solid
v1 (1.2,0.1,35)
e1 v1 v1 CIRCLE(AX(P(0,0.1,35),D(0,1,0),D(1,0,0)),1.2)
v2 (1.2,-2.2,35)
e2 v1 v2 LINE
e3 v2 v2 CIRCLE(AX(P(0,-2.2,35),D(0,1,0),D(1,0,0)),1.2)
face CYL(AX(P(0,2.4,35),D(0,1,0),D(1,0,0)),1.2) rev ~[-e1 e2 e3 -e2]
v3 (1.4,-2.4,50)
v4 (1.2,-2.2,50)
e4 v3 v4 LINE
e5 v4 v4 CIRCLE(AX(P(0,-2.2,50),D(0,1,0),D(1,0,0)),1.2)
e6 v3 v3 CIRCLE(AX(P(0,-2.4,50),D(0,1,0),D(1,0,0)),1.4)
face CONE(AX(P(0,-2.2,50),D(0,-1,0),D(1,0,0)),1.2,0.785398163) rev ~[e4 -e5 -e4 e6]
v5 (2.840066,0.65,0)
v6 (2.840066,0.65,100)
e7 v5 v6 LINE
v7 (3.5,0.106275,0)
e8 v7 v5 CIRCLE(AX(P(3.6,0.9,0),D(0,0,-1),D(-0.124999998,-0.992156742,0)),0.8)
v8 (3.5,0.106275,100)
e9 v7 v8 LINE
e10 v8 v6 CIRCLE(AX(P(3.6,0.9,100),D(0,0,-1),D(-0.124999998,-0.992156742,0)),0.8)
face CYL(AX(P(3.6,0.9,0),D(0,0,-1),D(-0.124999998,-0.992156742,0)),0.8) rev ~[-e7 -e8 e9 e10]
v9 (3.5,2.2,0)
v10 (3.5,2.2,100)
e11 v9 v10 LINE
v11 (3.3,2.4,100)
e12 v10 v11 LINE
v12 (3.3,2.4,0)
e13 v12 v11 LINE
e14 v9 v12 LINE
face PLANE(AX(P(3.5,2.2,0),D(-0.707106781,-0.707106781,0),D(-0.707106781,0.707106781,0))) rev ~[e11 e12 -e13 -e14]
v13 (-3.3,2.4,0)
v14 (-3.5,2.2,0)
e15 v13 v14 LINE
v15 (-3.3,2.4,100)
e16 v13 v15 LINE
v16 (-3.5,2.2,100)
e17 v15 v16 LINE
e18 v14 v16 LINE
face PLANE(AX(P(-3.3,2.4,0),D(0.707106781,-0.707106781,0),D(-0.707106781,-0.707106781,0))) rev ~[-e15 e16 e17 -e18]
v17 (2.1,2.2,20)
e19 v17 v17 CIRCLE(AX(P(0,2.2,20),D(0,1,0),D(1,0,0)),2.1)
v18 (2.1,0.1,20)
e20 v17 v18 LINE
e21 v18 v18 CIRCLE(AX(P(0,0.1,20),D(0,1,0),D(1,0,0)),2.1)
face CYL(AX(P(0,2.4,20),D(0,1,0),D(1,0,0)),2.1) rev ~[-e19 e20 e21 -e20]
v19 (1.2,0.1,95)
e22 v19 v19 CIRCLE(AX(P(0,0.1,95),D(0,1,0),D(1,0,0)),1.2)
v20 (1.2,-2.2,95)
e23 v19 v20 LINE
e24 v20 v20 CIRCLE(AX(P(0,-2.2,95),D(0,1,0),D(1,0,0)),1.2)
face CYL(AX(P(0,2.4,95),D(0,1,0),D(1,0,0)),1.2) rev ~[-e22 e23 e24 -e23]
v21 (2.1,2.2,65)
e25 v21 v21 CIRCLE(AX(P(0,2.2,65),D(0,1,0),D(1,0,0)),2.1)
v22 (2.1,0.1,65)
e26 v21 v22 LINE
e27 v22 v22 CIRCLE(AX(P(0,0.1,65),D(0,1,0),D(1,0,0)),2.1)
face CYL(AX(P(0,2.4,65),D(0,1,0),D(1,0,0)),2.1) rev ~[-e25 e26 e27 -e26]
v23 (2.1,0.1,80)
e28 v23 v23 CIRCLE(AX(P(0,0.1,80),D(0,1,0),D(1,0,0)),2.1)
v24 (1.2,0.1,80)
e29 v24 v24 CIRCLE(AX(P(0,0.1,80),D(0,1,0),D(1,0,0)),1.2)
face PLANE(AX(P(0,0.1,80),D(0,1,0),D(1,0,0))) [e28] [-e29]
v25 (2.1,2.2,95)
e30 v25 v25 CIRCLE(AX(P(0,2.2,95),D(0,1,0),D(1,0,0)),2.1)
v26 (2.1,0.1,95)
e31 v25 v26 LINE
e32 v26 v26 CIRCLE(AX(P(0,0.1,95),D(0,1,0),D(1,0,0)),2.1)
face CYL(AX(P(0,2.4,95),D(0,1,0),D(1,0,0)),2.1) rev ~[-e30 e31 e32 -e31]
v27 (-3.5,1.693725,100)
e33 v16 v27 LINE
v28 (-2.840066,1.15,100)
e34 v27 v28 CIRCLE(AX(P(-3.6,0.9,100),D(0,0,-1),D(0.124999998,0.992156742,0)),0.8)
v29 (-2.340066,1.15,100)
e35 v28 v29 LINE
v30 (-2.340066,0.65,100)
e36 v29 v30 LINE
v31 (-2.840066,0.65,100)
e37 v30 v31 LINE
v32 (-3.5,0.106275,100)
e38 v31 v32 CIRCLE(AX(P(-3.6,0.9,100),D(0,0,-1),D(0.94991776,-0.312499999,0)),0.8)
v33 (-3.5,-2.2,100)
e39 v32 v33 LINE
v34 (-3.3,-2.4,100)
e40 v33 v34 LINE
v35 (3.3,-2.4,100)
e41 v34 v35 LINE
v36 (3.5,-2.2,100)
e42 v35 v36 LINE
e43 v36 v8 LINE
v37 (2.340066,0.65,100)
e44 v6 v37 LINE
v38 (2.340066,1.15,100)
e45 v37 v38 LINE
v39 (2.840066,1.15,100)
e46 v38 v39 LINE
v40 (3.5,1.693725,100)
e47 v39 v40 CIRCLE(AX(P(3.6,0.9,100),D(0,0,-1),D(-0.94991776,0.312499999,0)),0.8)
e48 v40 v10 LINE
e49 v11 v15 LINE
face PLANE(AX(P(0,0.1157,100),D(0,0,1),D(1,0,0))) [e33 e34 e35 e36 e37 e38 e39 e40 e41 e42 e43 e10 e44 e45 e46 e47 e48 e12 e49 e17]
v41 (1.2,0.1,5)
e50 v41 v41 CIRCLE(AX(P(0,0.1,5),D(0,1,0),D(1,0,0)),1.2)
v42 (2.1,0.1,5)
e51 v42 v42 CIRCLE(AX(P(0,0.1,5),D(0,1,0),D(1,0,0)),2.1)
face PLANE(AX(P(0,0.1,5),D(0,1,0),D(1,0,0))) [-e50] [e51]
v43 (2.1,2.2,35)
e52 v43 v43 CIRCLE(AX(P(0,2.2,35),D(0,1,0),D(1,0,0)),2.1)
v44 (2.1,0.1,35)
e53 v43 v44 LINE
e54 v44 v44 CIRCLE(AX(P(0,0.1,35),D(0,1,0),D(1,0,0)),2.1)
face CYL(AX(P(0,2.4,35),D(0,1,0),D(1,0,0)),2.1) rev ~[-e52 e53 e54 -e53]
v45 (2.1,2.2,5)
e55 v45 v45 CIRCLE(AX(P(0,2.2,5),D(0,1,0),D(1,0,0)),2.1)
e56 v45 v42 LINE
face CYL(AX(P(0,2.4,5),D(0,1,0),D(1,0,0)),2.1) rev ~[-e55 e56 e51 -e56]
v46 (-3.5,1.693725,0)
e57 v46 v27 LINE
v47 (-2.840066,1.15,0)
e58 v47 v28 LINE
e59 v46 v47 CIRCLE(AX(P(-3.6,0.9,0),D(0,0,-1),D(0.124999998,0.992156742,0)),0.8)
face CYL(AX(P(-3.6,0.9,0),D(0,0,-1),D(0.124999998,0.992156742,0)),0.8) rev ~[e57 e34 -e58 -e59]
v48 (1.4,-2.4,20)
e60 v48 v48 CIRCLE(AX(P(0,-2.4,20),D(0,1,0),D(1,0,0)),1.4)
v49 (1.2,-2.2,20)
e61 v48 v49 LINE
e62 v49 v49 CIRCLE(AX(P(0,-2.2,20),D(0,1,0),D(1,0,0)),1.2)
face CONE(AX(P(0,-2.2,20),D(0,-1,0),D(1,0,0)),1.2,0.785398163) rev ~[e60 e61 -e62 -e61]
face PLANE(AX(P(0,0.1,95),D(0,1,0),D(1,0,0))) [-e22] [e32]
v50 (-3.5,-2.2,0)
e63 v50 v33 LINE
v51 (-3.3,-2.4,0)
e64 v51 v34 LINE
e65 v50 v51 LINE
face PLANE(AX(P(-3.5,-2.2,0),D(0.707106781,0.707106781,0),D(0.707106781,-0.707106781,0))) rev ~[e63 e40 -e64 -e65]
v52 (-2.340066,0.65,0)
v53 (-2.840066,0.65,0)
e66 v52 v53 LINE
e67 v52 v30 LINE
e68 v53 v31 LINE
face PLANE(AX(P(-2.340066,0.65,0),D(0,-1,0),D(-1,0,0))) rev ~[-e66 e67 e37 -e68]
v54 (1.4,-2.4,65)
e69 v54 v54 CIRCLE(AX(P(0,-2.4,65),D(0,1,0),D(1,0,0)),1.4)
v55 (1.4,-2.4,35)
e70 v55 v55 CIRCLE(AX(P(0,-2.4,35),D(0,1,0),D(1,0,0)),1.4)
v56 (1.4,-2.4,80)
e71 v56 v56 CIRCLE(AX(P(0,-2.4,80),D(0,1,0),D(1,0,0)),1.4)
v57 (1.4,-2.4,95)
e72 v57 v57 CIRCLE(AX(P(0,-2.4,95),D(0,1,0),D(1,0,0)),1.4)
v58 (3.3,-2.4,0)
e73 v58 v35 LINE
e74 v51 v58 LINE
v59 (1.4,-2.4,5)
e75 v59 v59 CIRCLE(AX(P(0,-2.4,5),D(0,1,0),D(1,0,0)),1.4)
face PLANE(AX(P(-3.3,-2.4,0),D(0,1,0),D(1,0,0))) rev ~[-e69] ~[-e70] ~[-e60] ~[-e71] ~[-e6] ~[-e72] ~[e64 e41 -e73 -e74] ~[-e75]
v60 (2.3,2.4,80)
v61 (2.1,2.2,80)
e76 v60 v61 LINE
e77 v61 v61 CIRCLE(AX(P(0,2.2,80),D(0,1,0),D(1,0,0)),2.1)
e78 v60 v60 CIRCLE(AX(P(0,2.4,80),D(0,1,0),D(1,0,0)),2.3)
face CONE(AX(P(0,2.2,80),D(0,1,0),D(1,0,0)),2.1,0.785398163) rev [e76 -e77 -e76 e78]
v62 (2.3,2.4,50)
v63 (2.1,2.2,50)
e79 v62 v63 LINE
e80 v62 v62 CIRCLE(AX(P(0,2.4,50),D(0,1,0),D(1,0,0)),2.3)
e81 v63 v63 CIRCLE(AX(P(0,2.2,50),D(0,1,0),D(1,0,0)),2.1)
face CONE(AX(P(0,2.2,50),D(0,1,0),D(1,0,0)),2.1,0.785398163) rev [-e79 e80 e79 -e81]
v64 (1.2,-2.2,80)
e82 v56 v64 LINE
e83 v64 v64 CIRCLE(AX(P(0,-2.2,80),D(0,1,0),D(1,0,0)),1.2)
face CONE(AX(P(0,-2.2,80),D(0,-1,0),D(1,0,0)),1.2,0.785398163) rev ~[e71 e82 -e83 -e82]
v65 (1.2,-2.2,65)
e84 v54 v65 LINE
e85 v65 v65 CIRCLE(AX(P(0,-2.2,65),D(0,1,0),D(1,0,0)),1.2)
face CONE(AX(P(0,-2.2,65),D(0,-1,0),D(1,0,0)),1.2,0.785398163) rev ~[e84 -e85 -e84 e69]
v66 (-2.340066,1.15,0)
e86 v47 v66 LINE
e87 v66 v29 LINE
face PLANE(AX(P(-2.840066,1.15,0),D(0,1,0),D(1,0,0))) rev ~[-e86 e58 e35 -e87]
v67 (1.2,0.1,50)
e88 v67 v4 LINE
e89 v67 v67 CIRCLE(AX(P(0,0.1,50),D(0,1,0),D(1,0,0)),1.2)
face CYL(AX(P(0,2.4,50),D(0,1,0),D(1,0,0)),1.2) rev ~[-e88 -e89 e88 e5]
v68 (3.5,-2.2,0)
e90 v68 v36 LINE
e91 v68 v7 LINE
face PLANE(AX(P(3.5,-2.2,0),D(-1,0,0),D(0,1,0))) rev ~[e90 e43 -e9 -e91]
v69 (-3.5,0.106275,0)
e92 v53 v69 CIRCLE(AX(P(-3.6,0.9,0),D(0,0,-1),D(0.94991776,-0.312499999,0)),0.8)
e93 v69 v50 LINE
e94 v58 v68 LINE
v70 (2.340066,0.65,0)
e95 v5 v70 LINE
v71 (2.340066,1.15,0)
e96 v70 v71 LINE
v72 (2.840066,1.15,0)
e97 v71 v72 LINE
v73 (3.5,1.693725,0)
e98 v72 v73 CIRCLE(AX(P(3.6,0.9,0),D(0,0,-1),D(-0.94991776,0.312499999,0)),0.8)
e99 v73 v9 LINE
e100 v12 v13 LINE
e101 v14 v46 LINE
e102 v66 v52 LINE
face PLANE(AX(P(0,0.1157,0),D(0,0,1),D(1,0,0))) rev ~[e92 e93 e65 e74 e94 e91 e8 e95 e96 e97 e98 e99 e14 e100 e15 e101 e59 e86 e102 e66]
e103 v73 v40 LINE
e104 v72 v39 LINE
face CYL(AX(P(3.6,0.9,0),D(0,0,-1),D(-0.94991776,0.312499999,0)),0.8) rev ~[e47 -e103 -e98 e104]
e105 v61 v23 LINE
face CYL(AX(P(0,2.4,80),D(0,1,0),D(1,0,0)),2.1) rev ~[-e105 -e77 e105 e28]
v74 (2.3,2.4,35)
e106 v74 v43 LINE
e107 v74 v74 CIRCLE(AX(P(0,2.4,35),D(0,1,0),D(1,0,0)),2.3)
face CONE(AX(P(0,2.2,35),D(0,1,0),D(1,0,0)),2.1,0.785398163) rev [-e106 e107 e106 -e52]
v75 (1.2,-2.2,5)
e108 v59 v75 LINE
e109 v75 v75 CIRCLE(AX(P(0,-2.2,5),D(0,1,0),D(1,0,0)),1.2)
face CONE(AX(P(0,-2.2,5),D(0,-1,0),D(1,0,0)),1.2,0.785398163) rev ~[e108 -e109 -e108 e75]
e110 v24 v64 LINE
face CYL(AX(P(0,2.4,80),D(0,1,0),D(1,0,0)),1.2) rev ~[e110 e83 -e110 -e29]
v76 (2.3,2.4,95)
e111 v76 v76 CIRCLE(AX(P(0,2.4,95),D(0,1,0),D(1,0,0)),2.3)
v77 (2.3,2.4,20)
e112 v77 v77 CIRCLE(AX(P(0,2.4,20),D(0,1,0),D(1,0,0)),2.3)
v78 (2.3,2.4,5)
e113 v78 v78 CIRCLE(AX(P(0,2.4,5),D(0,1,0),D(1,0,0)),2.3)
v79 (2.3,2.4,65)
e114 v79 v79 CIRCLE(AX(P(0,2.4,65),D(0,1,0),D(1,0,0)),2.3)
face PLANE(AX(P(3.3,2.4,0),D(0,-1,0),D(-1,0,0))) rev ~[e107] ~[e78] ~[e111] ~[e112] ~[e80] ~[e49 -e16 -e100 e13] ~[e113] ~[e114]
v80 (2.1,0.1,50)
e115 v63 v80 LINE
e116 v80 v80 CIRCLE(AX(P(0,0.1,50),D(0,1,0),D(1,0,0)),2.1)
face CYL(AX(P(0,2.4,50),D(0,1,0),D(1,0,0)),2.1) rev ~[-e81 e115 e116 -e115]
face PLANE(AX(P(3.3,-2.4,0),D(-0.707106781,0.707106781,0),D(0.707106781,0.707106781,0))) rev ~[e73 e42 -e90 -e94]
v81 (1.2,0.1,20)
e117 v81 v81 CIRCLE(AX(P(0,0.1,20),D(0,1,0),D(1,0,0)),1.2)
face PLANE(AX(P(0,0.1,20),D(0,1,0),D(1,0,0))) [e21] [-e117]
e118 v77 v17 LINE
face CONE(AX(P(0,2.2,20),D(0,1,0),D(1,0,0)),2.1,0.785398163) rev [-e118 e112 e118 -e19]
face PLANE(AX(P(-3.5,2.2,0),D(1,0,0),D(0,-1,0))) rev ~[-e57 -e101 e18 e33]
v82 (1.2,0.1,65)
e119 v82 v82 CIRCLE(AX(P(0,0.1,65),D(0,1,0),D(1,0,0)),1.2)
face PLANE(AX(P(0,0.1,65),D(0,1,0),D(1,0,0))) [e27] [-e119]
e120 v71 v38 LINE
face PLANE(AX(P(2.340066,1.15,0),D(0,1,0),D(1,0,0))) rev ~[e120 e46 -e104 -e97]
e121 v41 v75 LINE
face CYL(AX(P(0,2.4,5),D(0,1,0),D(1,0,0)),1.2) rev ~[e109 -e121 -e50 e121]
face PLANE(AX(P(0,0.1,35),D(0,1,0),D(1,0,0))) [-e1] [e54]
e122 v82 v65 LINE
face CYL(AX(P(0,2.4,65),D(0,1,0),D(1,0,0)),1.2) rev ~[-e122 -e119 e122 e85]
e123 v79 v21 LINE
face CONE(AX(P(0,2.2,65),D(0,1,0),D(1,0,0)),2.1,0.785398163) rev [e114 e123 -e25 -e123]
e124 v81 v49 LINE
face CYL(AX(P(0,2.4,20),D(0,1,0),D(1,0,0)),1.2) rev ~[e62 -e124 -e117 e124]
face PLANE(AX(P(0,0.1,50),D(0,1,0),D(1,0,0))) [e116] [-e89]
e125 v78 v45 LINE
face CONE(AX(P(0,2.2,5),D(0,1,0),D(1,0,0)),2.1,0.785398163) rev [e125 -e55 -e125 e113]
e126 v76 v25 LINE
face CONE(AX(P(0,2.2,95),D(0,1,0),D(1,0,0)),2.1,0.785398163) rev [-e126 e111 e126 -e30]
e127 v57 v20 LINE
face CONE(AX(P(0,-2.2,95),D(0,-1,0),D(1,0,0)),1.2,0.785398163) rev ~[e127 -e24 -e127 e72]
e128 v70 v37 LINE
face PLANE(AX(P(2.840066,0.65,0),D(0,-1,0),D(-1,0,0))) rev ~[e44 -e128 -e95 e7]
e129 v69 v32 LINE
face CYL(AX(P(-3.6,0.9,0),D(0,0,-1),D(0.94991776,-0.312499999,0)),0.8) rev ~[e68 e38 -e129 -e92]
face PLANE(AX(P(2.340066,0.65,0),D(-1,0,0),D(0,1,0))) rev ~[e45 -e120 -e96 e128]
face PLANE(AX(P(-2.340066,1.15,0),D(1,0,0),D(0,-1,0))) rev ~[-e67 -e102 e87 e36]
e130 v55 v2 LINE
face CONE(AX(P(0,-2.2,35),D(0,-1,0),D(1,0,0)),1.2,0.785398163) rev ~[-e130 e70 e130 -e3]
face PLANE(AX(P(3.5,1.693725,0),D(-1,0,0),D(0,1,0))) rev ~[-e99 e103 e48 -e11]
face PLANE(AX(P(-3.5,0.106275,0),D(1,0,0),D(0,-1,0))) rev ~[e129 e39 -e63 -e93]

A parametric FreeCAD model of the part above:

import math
import FreeCAD as App
import Part
import Sketcher

V = App.Vector


def edges_at(feature, points):
    """Names of the edges that pass closest to the given points."""
    edges = feature.Shape.Edges
    near = lambda p: min(range(len(edges)), key=lambda i: edges[i].distToShape(Part.Vertex(*p))[0])
    return sorted({f"Edge{near(p) + 1}" for p in points})

doc = App.newDocument("Part")
body = doc.addObject("PartDesign::Body", "Body")

# Sketch on XY plane
sketch1 = body.newObject("Sketcher::SketchObject", "Sketch")
sketch1.AttachmentSupport = (doc.getObject("XY_Plane"), [""])
sketch1.MapMode = "FlatFace"
sketch1.addGeometry(Part.LineSegment(V(-3.3, -2.4, 0), V(3.3, -2.4, 0)), False)
sketch1.addGeometry(Part.LineSegment(V(3.3, -2.4, 0), V(3.5, -2.2, 0)), False)
sketch1.addGeometry(Part.LineSegment(V(3.5, -2.2, 0), V(3.5, 0.11, 0)), False)
sketch1.addGeometry(Part.ArcOfCircle(Part.Circle(V(3.6, 0.9, 0), V(0, 0, 1), 0.8), math.radians(-162), math.radians(-97)), False)
sketch1.addGeometry(Part.LineSegment(V(2.84, 0.65, 0), V(2.34, 0.65, 0)), False)
sketch1.addGeometry(Part.LineSegment(V(2.34, 0.65, 0), V(2.34, 1.15, 0)), False)
sketch1.addGeometry(Part.LineSegment(V(2.34, 1.15, 0), V(2.84, 1.15, 0)), False)
sketch1.addGeometry(Part.ArcOfCircle(Part.Circle(V(3.6, 0.9, 0), V(0, 0, 1), 0.8), math.radians(97), math.radians(162)), False)
sketch1.addGeometry(Part.LineSegment(V(3.5, 1.69, 0), V(3.5, 2.2, 0)), False)
sketch1.addGeometry(Part.LineSegment(V(3.5, 2.2, 0), V(3.3, 2.4, 0)), False)
sketch1.addGeometry(Part.LineSegment(V(3.3, 2.4, 0), V(-3.3, 2.4, 0)), False)
sketch1.addGeometry(Part.LineSegment(V(-3.3, 2.4, 0), V(-3.5, 2.2, 0)), False)
sketch1.addGeometry(Part.LineSegment(V(-3.5, 2.2, 0), V(-3.5, 1.69, 0)), False)
sketch1.addGeometry(Part.ArcOfCircle(Part.Circle(V(-3.6, 0.9, 0), V(0, 0, 1), 0.8), math.radians(18), math.radians(83)), False)
sketch1.addGeometry(Part.LineSegment(V(-2.84, 1.15, 0), V(-2.34, 1.15, 0)), False)
sketch1.addGeometry(Part.LineSegment(V(-2.34, 1.15, 0), V(-2.34, 0.65, 0)), False)
sketch1.addGeometry(Part.LineSegment(V(-2.34, 0.65, 0), V(-2.84, 0.65, 0)), False)
sketch1.addGeometry(Part.ArcOfCircle(Part.Circle(V(-3.6, 0.9, 0), V(0, 0, 1), 0.8), math.radians(-83), math.radians(-18)), False)
sketch1.addGeometry(Part.LineSegment(V(-3.5, 0.11, 0), V(-3.5, -2.2, 0)), False)
sketch1.addGeometry(Part.LineSegment(V(-3.5, -2.2, 0), V(-3.3, -2.4, 0)), False)
sketch1.addConstraint(Sketcher.Constraint("Coincident", 0, 2, 1, 1))
sketch1.addConstraint(Sketcher.Constraint("Coincident", 1, 2, 2, 1))
sketch1.addConstraint(Sketcher.Constraint("Coincident", 2, 2, 3, 2))
sketch1.addConstraint(Sketcher.Constraint("Coincident", 3, 1, 4, 1))
sketch1.addConstraint(Sketcher.Constraint("Coincident", 4, 2, 5, 1))
sketch1.addConstraint(Sketcher.Constraint("Coincident", 5, 2, 6, 1))
sketch1.addConstraint(Sketcher.Constraint("Coincident", 6, 2, 7, 2))
sketch1.addConstraint(Sketcher.Constraint("Coincident", 7, 1, 8, 1))
sketch1.addConstraint(Sketcher.Constraint("Coincident", 8, 2, 9, 1))
sketch1.addConstraint(Sketcher.Constraint("Coincident", 9, 2, 10, 1))
sketch1.addConstraint(Sketcher.Constraint("Coincident", 10, 2, 11, 1))
sketch1.addConstraint(Sketcher.Constraint("Coincident", 11, 2, 12, 1))
sketch1.addConstraint(Sketcher.Constraint("Coincident", 12, 2, 13, 2))
sketch1.addConstraint(Sketcher.Constraint("Coincident", 13, 1, 14, 1))
sketch1.addConstraint(Sketcher.Constraint("Coincident", 14, 2, 15, 1))
sketch1.addConstraint(Sketcher.Constraint("Coincident", 15, 2, 16, 1))
sketch1.addConstraint(Sketcher.Constraint("Coincident", 16, 2, 17, 2))
sketch1.addConstraint(Sketcher.Constraint("Coincident", 17, 1, 18, 1))
sketch1.addConstraint(Sketcher.Constraint("Coincident", 18, 2, 19, 1))
sketch1.addConstraint(Sketcher.Constraint("Coincident", 19, 2, 0, 1))
sketch1.addConstraint(Sketcher.Constraint("Horizontal", 0))
sketch1.addConstraint(Sketcher.Constraint("Vertical", 2))
sketch1.addConstraint(Sketcher.Constraint("Horizontal", 4))
sketch1.addConstraint(Sketcher.Constraint("Vertical", 5))
sketch1.addConstraint(Sketcher.Constraint("Horizontal", 6))
sketch1.addConstraint(Sketcher.Constraint("Vertical", 8))
sketch1.addConstraint(Sketcher.Constraint("Horizontal", 10))
sketch1.addConstraint(Sketcher.Constraint("Vertical", 12))
sketch1.addConstraint(Sketcher.Constraint("Horizontal", 14))
sketch1.addConstraint(Sketcher.Constraint("Vertical", 15))
sketch1.addConstraint(Sketcher.Constraint("Horizontal", 16))
sketch1.addConstraint(Sketcher.Constraint("Vertical", 18))
sketch1.addConstraint(Sketcher.Constraint("Coincident", 7, 3, 3, 3))
sketch1.addConstraint(Sketcher.Constraint("Coincident", 17, 3, 13, 3))
sketch1.addConstraint(Sketcher.Constraint("Equal", 3, 7))
sketch1.addConstraint(Sketcher.Constraint("Equal", 7, 13))
sketch1.addConstraint(Sketcher.Constraint("Equal", 13, 17))
sketch1.addConstraint(Sketcher.Constraint("Symmetric", 0, 2, 10, 2, -1, 1))
sketch1.addConstraint(Sketcher.Constraint("Symmetric", 1, 2, 11, 2, -1, 1))
sketch1.addConstraint(Sketcher.Constraint("Symmetric", 8, 2, 18, 2, -1, 1))
sketch1.addConstraint(Sketcher.Constraint("Symmetric", 3, 3, 13, 3, -2))
sketch1.addConstraint(Sketcher.Constraint("Symmetric", 8, 2, 11, 2, -2))
sketch1.addConstraint(Sketcher.Constraint("Symmetric", 5, 2, 14, 2, -2))
sketch1.addConstraint(Sketcher.Constraint("Perpendicular", 1, 9))
sketch1.addConstraint(Sketcher.Constraint("Perpendicular", 11, 19))
sketch1.addConstraint(Sketcher.Constraint("Horizontal", 4, 2, 15, 2))
sketch1.addConstraint(Sketcher.Constraint("Vertical", 3, 1, 6, 2))
sketch1.addConstraint(Sketcher.Constraint("Vertical", 0, 2, 9, 2))
sketch1.addConstraint(Sketcher.Constraint("Equal", 16, 5))
sketch1.addConstraint(Sketcher.Constraint("Radius", 3, 0.8))
sketch1.addConstraint(Sketcher.Constraint("DistanceX", 0, 1, 0, 2, 6.6))
sketch1.addConstraint(Sketcher.Constraint("DistanceX", 4, 2, 4, 1, 0.5))
sketch1.addConstraint(Sketcher.Constraint("DistanceX", -1, 1, 3, 3, 3.6))
sketch1.addConstraint(Sketcher.Constraint("DistanceY", -1, 1, 3, 3, 0.9))
sketch1.addConstraint(Sketcher.Constraint("DistanceY", 0, 2, -1, 1, 2.4))
sketch1.addConstraint(Sketcher.Constraint("DistanceX", -1, 1, 1, 2, 3.5))
pad1 = body.newObject("PartDesign::Pad", "Pad")
pad1.Profile = sketch1
pad1.Length = 100

# Sketch on XZ plane
sketch2 = body.newObject("Sketcher::SketchObject", "Sketch001")
sketch2.AttachmentSupport = (doc.getObject("XZ_Plane"), [""])
sketch2.MapMode = "FlatFace"
sketch2.AttachmentOffset = App.Placement(V(0, 0, -2.4), App.Rotation())
sketch2.addGeometry(Part.Circle(V(0, 5, 0), V(0, 0, 1), 1.2), False)
sketch2.addConstraint(Sketcher.Constraint("PointOnObject", 0, 3, -2))
sketch2.addConstraint(Sketcher.Constraint("Diameter", 0, 2.4))
sketch2.addConstraint(Sketcher.Constraint("DistanceY", -1, 1, 0, 3, 5.0))
pocket1 = body.newObject("PartDesign::Pocket", "Pocket")
pocket1.Profile = sketch2
pocket1.Length = 4.8
pocket1.Reversed = True

# Sketch on XZ plane
sketch3 = body.newObject("Sketcher::SketchObject", "Sketch002")
sketch3.AttachmentSupport = (doc.getObject("XZ_Plane"), [""])
sketch3.MapMode = "FlatFace"
sketch3.AttachmentOffset = App.Placement(V(0, 0, -2.4), App.Rotation())
sketch3.addGeometry(Part.Circle(V(0, 5, 0), V(0, 0, 1), 2.1), False)
sketch3.addGeometry(Part.Circle(V(0, 5, 0), V(0, 0, 1), 1.2), False)
sketch3.addConstraint(Sketcher.Constraint("Coincident", 1, 3, 0, 3))
sketch3.addConstraint(Sketcher.Constraint("PointOnObject", 0, 3, -2))
sketch3.addConstraint(Sketcher.Constraint("Diameter", 0, 4.2))
sketch3.addConstraint(Sketcher.Constraint("Diameter", 1, 2.4))
sketch3.addConstraint(Sketcher.Constraint("DistanceY", -1, 1, 0, 3, 5.0))
pocket2 = body.newObject("PartDesign::Pocket", "Pocket001")
pocket2.Profile = sketch3
pocket2.Length = 2.3
pocket2.Reversed = True
doc.recompute()

chamfer = body.newObject("PartDesign::Chamfer", "Chamfer")
chamfer.Base = (pocket2, edges_at(pocket2, [(-1.2, -2.4, 5), (-2.1, 2.4, 5)]))
chamfer.Size = 0.2
doc.recompute()

linearpattern = body.newObject("PartDesign::LinearPattern", "LinearPattern")
linearpattern.Originals = [pocket1, pocket2]
linearpattern.Direction = (doc.getObject("Z_Axis"), [""])
linearpattern.Mode = "offset"
linearpattern.Offset = 15
linearpattern.Occurrences = 7
body.Tip = linearpattern
doc.recompute()

chamfer2 = body.newObject("PartDesign::Chamfer", "Chamfer001")
chamfer2.Base = (linearpattern, edges_at(linearpattern, [
    (-1.2, -2.4, 20),
    (-2.1, 2.4, 20),
    (-1.2, -2.4, 35),
    (-2.1, 2.4, 35),
    (-1.2, -2.4, 50),
    (-2.1, 2.4, 50),
    (-1.2, -2.4, 65),
    (-2.1, 2.4, 65),
    (-1.2, -2.4, 80),
    (-2.1, 2.4, 80),
    (-1.2, -2.4, 95),
    (-2.1, 2.4, 95),
]))
chamfer2.Size = 0.2

doc.recompute()
